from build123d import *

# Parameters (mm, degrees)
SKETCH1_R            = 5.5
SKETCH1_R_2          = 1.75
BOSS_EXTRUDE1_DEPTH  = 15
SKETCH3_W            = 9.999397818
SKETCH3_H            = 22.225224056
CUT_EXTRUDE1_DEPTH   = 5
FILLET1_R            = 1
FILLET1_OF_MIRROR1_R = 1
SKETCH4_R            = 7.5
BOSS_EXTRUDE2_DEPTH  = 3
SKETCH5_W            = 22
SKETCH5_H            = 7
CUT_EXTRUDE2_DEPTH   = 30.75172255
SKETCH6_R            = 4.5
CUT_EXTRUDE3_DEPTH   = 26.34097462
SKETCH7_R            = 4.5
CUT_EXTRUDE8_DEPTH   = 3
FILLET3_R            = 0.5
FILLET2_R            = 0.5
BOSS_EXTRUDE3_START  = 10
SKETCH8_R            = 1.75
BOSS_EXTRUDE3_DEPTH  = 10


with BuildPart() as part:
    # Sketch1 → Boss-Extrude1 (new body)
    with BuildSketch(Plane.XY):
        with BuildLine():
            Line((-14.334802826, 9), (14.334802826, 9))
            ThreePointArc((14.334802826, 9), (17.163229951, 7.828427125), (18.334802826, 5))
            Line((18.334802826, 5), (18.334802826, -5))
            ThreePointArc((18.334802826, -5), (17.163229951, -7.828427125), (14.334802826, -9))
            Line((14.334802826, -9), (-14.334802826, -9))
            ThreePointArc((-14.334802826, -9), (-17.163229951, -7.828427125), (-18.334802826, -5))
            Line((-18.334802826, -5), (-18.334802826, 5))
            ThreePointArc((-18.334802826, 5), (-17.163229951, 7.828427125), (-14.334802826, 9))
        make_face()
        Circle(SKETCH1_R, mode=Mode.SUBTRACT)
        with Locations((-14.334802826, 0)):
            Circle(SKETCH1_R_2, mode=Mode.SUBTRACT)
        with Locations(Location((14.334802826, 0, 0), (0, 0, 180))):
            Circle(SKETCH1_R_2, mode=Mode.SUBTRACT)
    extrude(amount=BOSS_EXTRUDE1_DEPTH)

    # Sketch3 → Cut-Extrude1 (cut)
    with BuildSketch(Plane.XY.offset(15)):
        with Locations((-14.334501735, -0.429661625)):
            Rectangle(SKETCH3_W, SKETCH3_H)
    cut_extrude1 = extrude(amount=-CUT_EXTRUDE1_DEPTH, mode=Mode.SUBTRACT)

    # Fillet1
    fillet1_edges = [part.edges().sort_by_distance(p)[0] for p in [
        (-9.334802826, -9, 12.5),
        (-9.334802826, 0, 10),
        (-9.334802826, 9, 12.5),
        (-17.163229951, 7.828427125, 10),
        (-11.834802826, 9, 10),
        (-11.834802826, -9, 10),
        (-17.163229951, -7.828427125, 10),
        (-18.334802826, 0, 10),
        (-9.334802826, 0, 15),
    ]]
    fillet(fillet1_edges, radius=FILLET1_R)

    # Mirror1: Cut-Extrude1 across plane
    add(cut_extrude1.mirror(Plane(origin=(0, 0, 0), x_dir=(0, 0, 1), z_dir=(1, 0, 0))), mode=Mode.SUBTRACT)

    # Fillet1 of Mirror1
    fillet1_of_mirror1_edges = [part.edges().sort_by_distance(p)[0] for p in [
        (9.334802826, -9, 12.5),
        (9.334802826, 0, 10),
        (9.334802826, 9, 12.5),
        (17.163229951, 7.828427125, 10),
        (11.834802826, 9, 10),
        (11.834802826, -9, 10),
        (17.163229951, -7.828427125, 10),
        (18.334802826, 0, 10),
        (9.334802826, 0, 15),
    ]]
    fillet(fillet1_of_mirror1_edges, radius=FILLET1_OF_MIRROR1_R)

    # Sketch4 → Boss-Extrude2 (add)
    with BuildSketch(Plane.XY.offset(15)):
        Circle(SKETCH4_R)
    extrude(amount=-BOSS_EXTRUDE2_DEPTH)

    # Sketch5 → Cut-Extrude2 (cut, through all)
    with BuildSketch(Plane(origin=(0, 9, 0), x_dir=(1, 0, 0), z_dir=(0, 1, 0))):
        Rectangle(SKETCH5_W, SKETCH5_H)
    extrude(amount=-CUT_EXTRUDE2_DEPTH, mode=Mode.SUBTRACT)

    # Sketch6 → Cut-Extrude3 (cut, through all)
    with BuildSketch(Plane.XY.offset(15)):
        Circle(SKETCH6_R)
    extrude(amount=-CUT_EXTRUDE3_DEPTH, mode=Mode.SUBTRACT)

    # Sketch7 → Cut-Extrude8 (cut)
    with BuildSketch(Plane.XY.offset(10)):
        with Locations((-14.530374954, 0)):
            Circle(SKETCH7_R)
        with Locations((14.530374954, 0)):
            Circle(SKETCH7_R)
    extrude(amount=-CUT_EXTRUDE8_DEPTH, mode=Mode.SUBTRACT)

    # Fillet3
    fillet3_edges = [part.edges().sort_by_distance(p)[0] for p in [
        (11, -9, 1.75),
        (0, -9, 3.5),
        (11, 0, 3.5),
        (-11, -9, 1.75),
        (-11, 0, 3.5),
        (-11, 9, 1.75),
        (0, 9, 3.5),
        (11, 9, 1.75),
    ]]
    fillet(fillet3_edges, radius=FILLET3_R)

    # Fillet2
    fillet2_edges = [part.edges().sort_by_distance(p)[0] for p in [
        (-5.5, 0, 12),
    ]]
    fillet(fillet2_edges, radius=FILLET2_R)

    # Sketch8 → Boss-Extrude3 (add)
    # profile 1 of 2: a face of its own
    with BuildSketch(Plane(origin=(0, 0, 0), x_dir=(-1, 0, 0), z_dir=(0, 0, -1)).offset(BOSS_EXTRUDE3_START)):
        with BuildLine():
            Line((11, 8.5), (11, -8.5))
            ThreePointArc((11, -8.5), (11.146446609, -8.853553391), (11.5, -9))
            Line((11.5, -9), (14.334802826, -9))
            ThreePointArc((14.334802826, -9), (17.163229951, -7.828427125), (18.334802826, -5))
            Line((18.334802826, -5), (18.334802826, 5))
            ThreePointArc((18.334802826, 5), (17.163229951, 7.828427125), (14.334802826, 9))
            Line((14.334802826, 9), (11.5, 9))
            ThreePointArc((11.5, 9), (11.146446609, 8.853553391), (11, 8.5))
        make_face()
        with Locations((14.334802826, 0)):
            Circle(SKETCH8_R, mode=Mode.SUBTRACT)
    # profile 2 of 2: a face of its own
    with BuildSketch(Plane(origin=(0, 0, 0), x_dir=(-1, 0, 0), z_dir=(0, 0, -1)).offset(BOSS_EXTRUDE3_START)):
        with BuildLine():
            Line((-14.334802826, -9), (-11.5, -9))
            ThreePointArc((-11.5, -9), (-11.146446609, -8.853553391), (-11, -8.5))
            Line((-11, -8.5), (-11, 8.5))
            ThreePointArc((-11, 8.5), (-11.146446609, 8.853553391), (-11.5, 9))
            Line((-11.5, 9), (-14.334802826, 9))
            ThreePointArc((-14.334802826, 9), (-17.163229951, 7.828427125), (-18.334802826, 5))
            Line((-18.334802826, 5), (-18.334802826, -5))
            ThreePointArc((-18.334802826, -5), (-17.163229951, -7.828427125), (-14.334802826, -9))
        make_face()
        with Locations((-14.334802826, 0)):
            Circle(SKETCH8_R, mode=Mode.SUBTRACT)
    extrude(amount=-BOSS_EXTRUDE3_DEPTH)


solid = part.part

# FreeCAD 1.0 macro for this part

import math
import FreeCAD as App
import Part
import Sketcher

V = App.Vector
Q = App.Units.Quantity


def edges_at(feature, points):
    """Names of the edges that pass closest to the given points."""
    edges = feature.Shape.Edges
    near = lambda p: min(range(len(edges)), key=lambda i: edges[i].distToShape(Part.Vertex(*p))[0])
    return sorted({f"Edge{near(p) + 1}" for p in points})


def add_polygon(sketch, points):
    """Adds a closed chain of lines whose ends are joined by coincident constraints."""
    first, n = sketch.GeometryCount, len(points)
    for a, b in zip(points, points[1:] + points[:1]):
        sketch.addGeometry(Part.LineSegment(App.Vector(*a, 0), App.Vector(*b, 0)), False)
    for i in range(n):
        sketch.addConstraint(Sketcher.Constraint("Coincident", first + i, 2, first + (i + 1) % n, 1))

doc = App.newDocument("Part")
body = doc.addObject("PartDesign::Body", "Body")

sketch1 = body.newObject("Sketcher::SketchObject", "Sketch")
sketch1.AttachmentSupport = (doc.getObject("XY_Plane"), [""])
sketch1.MapMode = "FlatFace"
sketch1.addGeometry([
    Part.LineSegment(V(14.334803, 9, 0), V(-14.334803, 9, 0)),
    Part.ArcOfCircle(Part.Circle(V(-14.334803, 5, 0), V(0, 0, 1), 4), math.radians(90), math.radians(180)),
    Part.LineSegment(V(-18.334803, 5, 0), V(-18.334803, -5, 0)),
    Part.ArcOfCircle(Part.Circle(V(-14.334803, -5, 0), V(0, 0, 1), 4), math.radians(180), math.radians(270)),
    Part.LineSegment(V(-14.334803, -9, 0), V(14.334803, -9, 0)),
    Part.ArcOfCircle(Part.Circle(V(14.334803, -5, 0), V(0, 0, 1), 4), math.radians(-90), math.radians(0)),
    Part.LineSegment(V(18.334803, -5, 0), V(18.334803, 5, 0)),
    Part.ArcOfCircle(Part.Circle(V(14.334803, 5, 0), V(0, 0, 1), 4), math.radians(0), math.radians(90)),
    Part.Circle(V(14.334803, 0, 0), V(0, 0, 1), 1.75),
    Part.Circle(V(0, 0, 0), V(0, 0, 1), 5.5),
    Part.Circle(V(-14.334803, 0, 0), V(0, 0, 1), 1.75),
], False)
sketch1.addConstraint([
    Sketcher.Constraint("Tangent", 0, 2, 1, 1),
    Sketcher.Constraint("Tangent", 1, 2, 2, 1),
    Sketcher.Constraint("Tangent", 2, 2, 3, 1),
    Sketcher.Constraint("Tangent", 3, 2, 4, 1),
    Sketcher.Constraint("Tangent", 4, 2, 5, 1),
    Sketcher.Constraint("Tangent", 5, 2, 6, 1),
    Sketcher.Constraint("Tangent", 6, 2, 7, 1),
    Sketcher.Constraint("Tangent", 7, 2, 0, 1),
    Sketcher.Constraint("Horizontal", 0),
    Sketcher.Constraint("Vertical", 2),
    Sketcher.Constraint("Horizontal", 4),
    Sketcher.Constraint("Vertical", 6),
    Sketcher.Constraint("Coincident", 9, 3, -1, 1),
    Sketcher.Constraint("Equal", 1, 3),
    Sketcher.Constraint("Equal", 3, 5),
    Sketcher.Constraint("Equal", 5, 7),
    Sketcher.Constraint("Equal", 8, 10),
    Sketcher.Constraint("Symmetric", 1, 3, 5, 3, -1, 1),
    Sketcher.Constraint("Symmetric", 8, 3, 10, 3, -1, 1),
    Sketcher.Constraint("PointOnObject", 8, 3, -1),
    Sketcher.Constraint("Vertical", 7, 3, 8, 3),
    Sketcher.Constraint("Diameter", 9, Q("11 mm")),
    Sketcher.Constraint("Radius", 1, Q("4 mm")),
    Sketcher.Constraint("Diameter", 8, Q("3.5 mm")),
    Sketcher.Constraint("DistanceY", 2, 2, 2, 1, Q("10 mm")),
    Sketcher.Constraint("DistanceX", 0, 2, 0, 1, Q("28.669606 mm")),
])
pad1 = body.newObject("PartDesign::Pad", "Pad")
pad1.Profile = sketch1
pad1.Length = 15

sketch2 = body.newObject("Sketcher::SketchObject", "Sketch001")
sketch2.AttachmentSupport = (doc.getObject("XY_Plane"), [""])
sketch2.MapMode = "FlatFace"
sketch2.AttachmentOffset = App.Placement(V(0, 0, 15), App.Rotation())
add_polygon(sketch2, [(-19.334201, 10.68295), (-19.334201, -11.542274), (-9.334803, -11.542274), (-9.334803, 10.68295)])
sketch2.addConstraint([
    Sketcher.Constraint("Vertical", 0),
    Sketcher.Constraint("Horizontal", 1),
    Sketcher.Constraint("Vertical", 2),
    Sketcher.Constraint("Horizontal", 3),
    Sketcher.Constraint("DistanceX", 0, 2, -1, 1, Q("19.334201 mm")),
    Sketcher.Constraint("DistanceX", 1, 1, 1, 2, Q("9.999398 mm")),
    Sketcher.Constraint("DistanceY", 0, 2, 0, 1, Q("22.225224 mm")),
    Sketcher.Constraint("DistanceY", -1, 1, 2, 2, Q("10.68295 mm")),
])
pocket1 = body.newObject("PartDesign::Pocket", "Pocket")
pocket1.Profile = sketch2
pocket1.Length = 5
doc.recompute()

fillet = body.newObject("PartDesign::Fillet", "Fillet")
fillet.Base = (pocket1, edges_at(pocket1, [
    (-9.335, -9, 12.5),
    (-9.335, 0, 10),
    (-9.335, 9, 12.5),
    (-17.163, 7.828, 10),
    (-11.835, 9, 10),
    (-11.835, -9, 10),
    (-17.163, -7.828, 10),
    (-18.335, 0, 10),
    (-9.335, 0, 15),
]))
fillet.Radius = 1
doc.recompute()

mirrored = body.newObject("PartDesign::Mirrored", "Mirrored")
mirrored.Originals = [pocket1]
mirrored.MirrorPlane = (doc.getObject("YZ_Plane"), [""])
body.Tip = mirrored
doc.recompute()

fillet2 = body.newObject("PartDesign::Fillet", "Fillet001")
fillet2.Base = (mirrored, edges_at(mirrored, [
    (9.335, -9, 12.5),
    (9.335, 0, 10),
    (9.335, 9, 12.5),
    (17.163, 7.828, 10),
    (11.835, 9, 10),
    (11.835, -9, 10),
    (17.163, -7.828, 10),
    (18.335, 0, 10),
    (9.335, 0, 15),
]))
fillet2.Radius = 1

sketch3 = body.newObject("Sketcher::SketchObject", "Sketch002")
sketch3.AttachmentSupport = (doc.getObject("XY_Plane"), [""])
sketch3.MapMode = "FlatFace"
sketch3.AttachmentOffset = App.Placement(V(0, 0, 15), App.Rotation())
sketch3.addGeometry(Part.Circle(V(0, 0, 0), V(0, 0, 1), 7.5), False)
sketch3.addConstraint([
    Sketcher.Constraint("Coincident", 0, 3, -1, 1),
    Sketcher.Constraint("Diameter", 0, Q("15 mm")),
])
pad2 = body.newObject("PartDesign::Pad", "Pad001")
pad2.Profile = sketch3
pad2.Length = 3
pad2.Reversed = True

sketch4 = body.newObject("Sketcher::SketchObject", "Sketch003")
sketch4.AttachmentSupport = (doc.getObject("XZ_Plane"), [""])
sketch4.MapMode = "FlatFace"
sketch4.AttachmentOffset = App.Placement(V(0, 0, -9), App.Rotation())
add_polygon(sketch4, [(-11, -3.5), (-11, 3.5), (11, 3.5), (11, -3.5)])
sketch4.addConstraint([
    Sketcher.Constraint("Vertical", 0),
    Sketcher.Constraint("Horizontal", 1),
    Sketcher.Constraint("Vertical", 2),
    Sketcher.Constraint("Horizontal", 3),
    Sketcher.Constraint("Symmetric", 0, 2, 2, 2, -1, 1),
    Sketcher.Constraint("DistanceX", 1, 1, 1, 2, Q("22 mm")),
    Sketcher.Constraint("DistanceY", 0, 1, 0, 2, Q("7 mm")),
])
pocket2 = body.newObject("PartDesign::Pocket", "Pocket001")
pocket2.Profile = sketch4
pocket2.Type = "ThroughAll"
pocket2.Reversed = True

sketch5 = body.newObject("Sketcher::SketchObject", "Sketch004")
sketch5.AttachmentSupport = (doc.getObject("XY_Plane"), [""])
sketch5.MapMode = "FlatFace"
sketch5.AttachmentOffset = App.Placement(V(0, 0, 15), App.Rotation())
sketch5.addGeometry(Part.Circle(V(0, 0, 0), V(0, 0, 1), 4.5), False)
sketch5.addConstraint([
    Sketcher.Constraint("Coincident", 0, 3, -1, 1),
    Sketcher.Constraint("Diameter", 0, Q("9 mm")),
])
pocket3 = body.newObject("PartDesign::Pocket", "Pocket002")
pocket3.Profile = sketch5
pocket3.Type = "ThroughAll"

sketch6 = body.newObject("Sketcher::SketchObject", "Sketch005")
sketch6.AttachmentSupport = (doc.getObject("XY_Plane"), [""])
sketch6.MapMode = "FlatFace"
sketch6.AttachmentOffset = App.Placement(V(0, 0, 10), App.Rotation())
sketch6.addGeometry([
    Part.Circle(V(-14.530375, 0, 0), V(0, 0, 1), 4.5),
    Part.Circle(V(14.530375, 0, 0), V(0, 0, 1), 4.5),
], False)
sketch6.addConstraint([
    Sketcher.Constraint("Equal", 0, 1),
    Sketcher.Constraint("Symmetric", 0, 3, 1, 3, -1, 1),
    Sketcher.Constraint("PointOnObject", 0, 3, -1),
    Sketcher.Constraint("Diameter", 0, Q("9 mm")),
    Sketcher.Constraint("DistanceX", 0, 3, 1, 3, Q("29.06075 mm")),
])
pocket4 = body.newObject("PartDesign::Pocket", "Pocket003")
pocket4.Profile = sketch6
pocket4.Length = 3
doc.recompute()

fillet3 = body.newObject("PartDesign::Fillet", "Fillet002")
fillet3.Base = (pocket4, edges_at(pocket4, [
    (11, -9, 1.75),
    (0, -9, 3.5),
    (11, 0, 3.5),
    (-11, -9, 1.75),
    (-11, 0, 3.5),
    (-11, 9, 1.75),
    (0, 9, 3.5),
    (11, 9, 1.75),
]))
fillet3.Radius = 0.5
doc.recompute()

fillet4 = body.newObject("PartDesign::Fillet", "Fillet003")
fillet4.Base = (fillet3, edges_at(fillet3, [(-5.5, 0, 12)]))
fillet4.Radius = 0.5

sketch7 = body.newObject("Sketcher::SketchObject", "Sketch006")
sketch7.AttachmentSupport = (doc.getObject("XY_Plane"), [""])
sketch7.MapMode = "FlatFace"
sketch7.AttachmentOffset = App.Placement(V(0, 0, -10), App.Rotation())
sketch7.addGeometry([
    Part.LineSegment(V(-11, 8.5, 0), V(-11, -8.5, 0)),
    Part.ArcOfCircle(Part.Circle(V(-11.5, -8.5, 0), V(0, 0, 1), 0.5), math.radians(-90), math.radians(0)),
    Part.LineSegment(V(-11.5, -9, 0), V(-14.334803, -9, 0)),
    Part.ArcOfCircle(Part.Circle(V(-14.334803, -5, 0), V(0, 0, 1), 4), math.radians(180), math.radians(270)),
    Part.LineSegment(V(-18.334803, -5, 0), V(-18.334803, 5, 0)),
    Part.ArcOfCircle(Part.Circle(V(-14.334803, 5, 0), V(0, 0, 1), 4), math.radians(90), math.radians(180)),
    Part.LineSegment(V(-14.334803, 9, 0), V(-11.5, 9, 0)),
    Part.ArcOfCircle(Part.Circle(V(-11.5, 8.5, 0), V(0, 0, 1), 0.5), math.radians(0), math.radians(90)),
    Part.Circle(V(-14.334803, 0, 0), V(0, 0, 1), 1.75),
    Part.LineSegment(V(14.334803, -9, 0), V(11.5, -9, 0)),
    Part.ArcOfCircle(Part.Circle(V(11.5, -8.5, 0), V(0, 0, 1), 0.5), math.radians(180), math.radians(270)),
    Part.LineSegment(V(11, -8.5, 0), V(11, 8.5, 0)),
    Part.ArcOfCircle(Part.Circle(V(11.5, 8.5, 0), V(0, 0, 1), 0.5), math.radians(90), math.radians(180)),
    Part.LineSegment(V(11.5, 9, 0), V(14.334803, 9, 0)),
    Part.ArcOfCircle(Part.Circle(V(14.334803, 5, 0), V(0, 0, 1), 4), math.radians(0), math.radians(90)),
    Part.LineSegment(V(18.334803, 5, 0), V(18.334803, -5, 0)),
    Part.ArcOfCircle(Part.Circle(V(14.334803, -5, 0), V(0, 0, 1), 4), math.radians(-90), math.radians(0)),
    Part.Circle(V(14.334803, 0, 0), V(0, 0, 1), 1.75),
], False)
sketch7.addConstraint([
    Sketcher.Constraint("Tangent", 0, 2, 1, 2),
    Sketcher.Constraint("Tangent", 1, 1, 2, 1),
    Sketcher.Constraint("Tangent", 2, 2, 3, 2),
    Sketcher.Constraint("Tangent", 3, 1, 4, 1),
    Sketcher.Constraint("Tangent", 4, 2, 5, 2),
    Sketcher.Constraint("Tangent", 5, 1, 6, 1),
    Sketcher.Constraint("Tangent", 6, 2, 7, 2),
    Sketcher.Constraint("Tangent", 7, 1, 0, 1),
    Sketcher.Constraint("Tangent", 9, 2, 10, 2),
    Sketcher.Constraint("Tangent", 10, 1, 11, 1),
    Sketcher.Constraint("Tangent", 11, 2, 12, 2),
    Sketcher.Constraint("Tangent", 12, 1, 13, 1),
    Sketcher.Constraint("Tangent", 13, 2, 14, 2),
    Sketcher.Constraint("Tangent", 14, 1, 15, 1),
    Sketcher.Constraint("Tangent", 15, 2, 16, 2),
    Sketcher.Constraint("Tangent", 16, 1, 9, 1),
    Sketcher.Constraint("Vertical", 0),
    Sketcher.Constraint("Horizontal", 2),
    Sketcher.Constraint("Vertical", 4),
    Sketcher.Constraint("Horizontal", 6),
    Sketcher.Constraint("Horizontal", 9),
    Sketcher.Constraint("Vertical", 11),
    Sketcher.Constraint("Horizontal", 13),
    Sketcher.Constraint("Vertical", 15),
    Sketcher.Constraint("Equal", 3, 5),
    Sketcher.Constraint("Equal", 1, 7),
    Sketcher.Constraint("Equal", 7, 10),
    Sketcher.Constraint("Equal", 10, 12),
    Sketcher.Constraint("Equal", 5, 14),
    Sketcher.Constraint("Equal", 14, 16),
    Sketcher.Constraint("Equal", 8, 17),
    Sketcher.Constraint("Symmetric", 7, 3, 10, 3, -1, 1),
    Sketcher.Constraint("Symmetric", 3, 3, 14, 3, -1, 1),
    Sketcher.Constraint("Symmetric", 8, 3, 17, 3, -1, 1),
    Sketcher.Constraint("PointOnObject", 8, 3, -1),
    Sketcher.Constraint("Horizontal", 1, 3, 10, 3),
    Sketcher.Constraint("Vertical", 5, 3, 8, 3),
    Sketcher.Constraint("Radius", 3, Q("4 mm")),
    Sketcher.Constraint("Diameter", 8, Q("3.5 mm")),
    Sketcher.Constraint("Radius", 1, Q("0.5 mm")),
    Sketcher.Constraint("DistanceY", 0, 2, 0, 1, Q("17 mm")),
    Sketcher.Constraint("DistanceX", 0, 2, -1, 1, Q("11 mm")),
    Sketcher.Constraint("DistanceX", 2, 2, 2, 1, Q("2.834803 mm")),
])
pad3 = body.newObject("PartDesign::Pad", "Pad002")
pad3.Profile = sketch7
pad3.Length = 10

doc.recompute()
